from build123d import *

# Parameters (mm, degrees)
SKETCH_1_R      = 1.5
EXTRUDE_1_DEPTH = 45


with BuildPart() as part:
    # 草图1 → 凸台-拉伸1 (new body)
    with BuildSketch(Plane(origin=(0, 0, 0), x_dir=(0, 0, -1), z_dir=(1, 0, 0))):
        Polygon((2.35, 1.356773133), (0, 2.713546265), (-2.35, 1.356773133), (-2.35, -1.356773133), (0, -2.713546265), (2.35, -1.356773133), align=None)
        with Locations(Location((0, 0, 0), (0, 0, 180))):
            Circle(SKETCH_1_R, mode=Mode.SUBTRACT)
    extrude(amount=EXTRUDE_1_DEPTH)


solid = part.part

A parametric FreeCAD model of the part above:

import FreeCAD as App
import Part
import Sketcher

V = App.Vector
Q = App.Units.Quantity

doc = App.newDocument("Part")
body = doc.addObject("PartDesign::Body", "Body")

# Sketch on YZ plane
sketch1 = body.newObject("Sketcher::SketchObject", "Sketch")
sketch1.AttachmentSupport = (doc.getObject("YZ_Plane"), [""])
sketch1.MapMode = "FlatFace"
sketch1.addGeometry([
    Part.LineSegment(V(1.4, -2.4, 0), V(2.7, 0, 0)),  # 0
    Part.LineSegment(V(2.7, 0, 0), V(1.4, 2.4, 0)),  # 1
    Part.LineSegment(V(1.4, 2.4, 0), V(-1.4, 2.4, 0)),  # 2
    Part.LineSegment(V(-1.4, 2.4, 0), V(-2.7, 0, 0)),  # 3
    Part.LineSegment(V(-2.7, 0, 0), V(-1.4, -2.4, 0)),  # 4
    Part.LineSegment(V(-1.4, -2.4, 0), V(1.4, -2.4, 0)),  # 5
    Part.Circle(V(0, 0, 0), V(0, 0, 1), 1.5),  # 6
], False)
sketch1.addConstraint([
    Sketcher.Constraint("Coincident", 0, 2, 1, 1),
    Sketcher.Constraint("Coincident", 1, 2, 2, 1),
    Sketcher.Constraint("Coincident", 2, 2, 3, 1),
    Sketcher.Constraint("Coincident", 3, 2, 4, 1),
    Sketcher.Constraint("Coincident", 4, 2, 5, 1),
    Sketcher.Constraint("Coincident", 5, 2, 0, 1),
    Sketcher.Constraint("Horizontal", 2),
    Sketcher.Constraint("Horizontal", 5),
    Sketcher.Constraint("Coincident", 6, 3, -1, 1),
    Sketcher.Constraint("Symmetric", 0, 2, 3, 2, -1, 1),
    Sketcher.Constraint("Symmetric", 1, 2, 4, 2, -1, 1),
    Sketcher.Constraint("PointOnObject", 0, 2, -1),
    Sketcher.Constraint("Parallel", 0, 3),
    Sketcher.Constraint("Vertical", 2, 2, 4, 2),
    Sketcher.Constraint("Diameter", 6, Q("3 mm")),
    Sketcher.Constraint("Angle", 0, Q("60 deg")),
    Sketcher.Constraint("DistanceY", 4, 2, 2, 2, Q("4.7 mm")),
    Sketcher.Constraint("DistanceX", 2, 2, 2, 1, Q("2.713546 mm")),
])
pad1 = body.newObject("PartDesign::Pad", "Pad")
pad1.Profile = sketch1
pad1.Length = 45

doc.recompute()
